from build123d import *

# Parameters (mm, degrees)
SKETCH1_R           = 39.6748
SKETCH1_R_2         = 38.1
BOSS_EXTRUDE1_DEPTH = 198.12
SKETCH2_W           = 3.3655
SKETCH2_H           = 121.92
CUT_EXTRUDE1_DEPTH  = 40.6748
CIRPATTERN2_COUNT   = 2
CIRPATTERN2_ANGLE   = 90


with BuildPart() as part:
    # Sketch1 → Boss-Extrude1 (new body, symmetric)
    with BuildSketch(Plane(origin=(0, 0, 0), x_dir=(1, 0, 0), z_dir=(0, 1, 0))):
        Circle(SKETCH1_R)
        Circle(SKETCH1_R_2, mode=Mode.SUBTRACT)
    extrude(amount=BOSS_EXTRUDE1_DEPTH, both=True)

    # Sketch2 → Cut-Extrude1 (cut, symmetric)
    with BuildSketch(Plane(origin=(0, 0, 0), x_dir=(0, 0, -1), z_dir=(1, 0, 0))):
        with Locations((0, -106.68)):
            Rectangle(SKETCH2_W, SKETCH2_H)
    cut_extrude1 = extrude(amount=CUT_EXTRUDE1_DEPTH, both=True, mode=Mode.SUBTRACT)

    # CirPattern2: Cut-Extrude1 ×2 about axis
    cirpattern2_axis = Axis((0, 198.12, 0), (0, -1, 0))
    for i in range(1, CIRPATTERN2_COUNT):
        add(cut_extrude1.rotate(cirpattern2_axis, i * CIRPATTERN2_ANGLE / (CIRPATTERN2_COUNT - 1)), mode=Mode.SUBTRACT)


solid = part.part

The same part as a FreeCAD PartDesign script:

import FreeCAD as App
import Part
import Sketcher
Q = App.Units.Quantity

doc = App.newDocument("Part")
params = doc.addObject("Spreadsheet::Sheet", "Params")
for row, (alias, value) in enumerate([
    ("sketch1_diameter", "3 in"),
    ("sketch1_diameter2", "3.124 in"),
    ("pad1_length", "15.6 in"),
    ("sketch2_width", "4.8 in"),
    ("pocket1_length", "81.3496 mm"),
], start=1):
    params.set(f"A{row}", alias)
    params.set(f"B{row}", "=" + value)
    params.setAlias(f"B{row}", alias)

body = doc.addObject("PartDesign::Body", "Body")

sketch1 = doc.addObject("Sketcher::SketchObject", "Sketch")
body.addObject(sketch1)
sketch1.AttachmentSupport = (doc.XZ_Plane, [""])
sketch1.MapMode = "FlatFace"
sketch1.addGeometry([
    Part.Circle(App.Vector(0, 0, 0), App.Vector(0, 0, 1), 40),
    Part.Circle(App.Vector(0, 0, 0), App.Vector(0, 0, 1), 38),
], False)
sketch1.addConstraint([
    Sketcher.Constraint("Coincident", 0, 3, -1, 1),
    Sketcher.Constraint("Coincident", 1, 3, -1, 1),
    Sketcher.Constraint("Diameter", 1, Q("3 in")),
    Sketcher.Constraint("Diameter", 0, Q("3.124 in")),
])
sketch1.setExpression("Constraints[2]", "Params.sketch1_diameter")
sketch1.setExpression("Constraints[3]", "Params.sketch1_diameter2")
pad1 = doc.addObject("PartDesign::Pad", "Pad")
body.addObject(pad1)
pad1.Profile = sketch1
pad1.setExpression("Length", "Params.pad1_length")
pad1.Midplane = True

sketch2 = doc.addObject("Sketcher::SketchObject", "Sketch001")
body.addObject(sketch2)
sketch2.AttachmentSupport = (doc.YZ_Plane, [""])
sketch2.MapMode = "FlatFace"
sketch2.addGeometry([
    Part.LineSegment(App.Vector(-45.7, 1.7, 0), App.Vector(-167.6, 1.7, 0)),
    Part.LineSegment(App.Vector(-167.6, 1.7, 0), App.Vector(-167.6, -1.7, 0)),
    Part.LineSegment(App.Vector(-167.6, -1.7, 0), App.Vector(-45.7, -1.7, 0)),
    Part.LineSegment(App.Vector(-45.7, -1.7, 0), App.Vector(-45.7, 1.7, 0)),
], False)
sketch2.addConstraint([
    Sketcher.Constraint("Coincident", 0, 2, 1, 1),
    Sketcher.Constraint("Coincident", 1, 2, 2, 1),
    Sketcher.Constraint("Coincident", 2, 2, 3, 1),
    Sketcher.Constraint("Coincident", 3, 2, 0, 1),
    Sketcher.Constraint("Horizontal", 0),
    Sketcher.Constraint("Vertical", 1),
    Sketcher.Constraint("Horizontal", 2),
    Sketcher.Constraint("Vertical", 3),
    Sketcher.Constraint("DistanceX", 0, 2, 0, 1, Q("4.8 in")),
    Sketcher.Constraint("DistanceX", 0, 2, -1, 1, Q("6.6 in")),
    Sketcher.Constraint("DistanceY", 1, 2, 1, 1, Q("0.1325 in")),
    Sketcher.Constraint("DistanceY", -1, 1, 0, 2, Q("1.68275 mm")),
])
sketch2.setExpression("Constraints[8]", "Params.sketch2_width")
pocket1 = doc.addObject("PartDesign::Pocket", "Pocket")
body.addObject(pocket1)
pocket1.Profile = sketch2
pocket1.setExpression("Length", "Params.pocket1_length")
pocket1.Midplane = True
doc.recompute()

polarpattern = doc.addObject("PartDesign::PolarPattern", "PolarPattern")
body.addObject(polarpattern)
polarpattern.Originals = [pocket1]
polarpattern.Axis = (doc.Y_Axis, [""])
polarpattern.Angle = 90
polarpattern.Occurrences = 2
polarpattern.Reversed = True
body.Tip = polarpattern

doc.recompute()
